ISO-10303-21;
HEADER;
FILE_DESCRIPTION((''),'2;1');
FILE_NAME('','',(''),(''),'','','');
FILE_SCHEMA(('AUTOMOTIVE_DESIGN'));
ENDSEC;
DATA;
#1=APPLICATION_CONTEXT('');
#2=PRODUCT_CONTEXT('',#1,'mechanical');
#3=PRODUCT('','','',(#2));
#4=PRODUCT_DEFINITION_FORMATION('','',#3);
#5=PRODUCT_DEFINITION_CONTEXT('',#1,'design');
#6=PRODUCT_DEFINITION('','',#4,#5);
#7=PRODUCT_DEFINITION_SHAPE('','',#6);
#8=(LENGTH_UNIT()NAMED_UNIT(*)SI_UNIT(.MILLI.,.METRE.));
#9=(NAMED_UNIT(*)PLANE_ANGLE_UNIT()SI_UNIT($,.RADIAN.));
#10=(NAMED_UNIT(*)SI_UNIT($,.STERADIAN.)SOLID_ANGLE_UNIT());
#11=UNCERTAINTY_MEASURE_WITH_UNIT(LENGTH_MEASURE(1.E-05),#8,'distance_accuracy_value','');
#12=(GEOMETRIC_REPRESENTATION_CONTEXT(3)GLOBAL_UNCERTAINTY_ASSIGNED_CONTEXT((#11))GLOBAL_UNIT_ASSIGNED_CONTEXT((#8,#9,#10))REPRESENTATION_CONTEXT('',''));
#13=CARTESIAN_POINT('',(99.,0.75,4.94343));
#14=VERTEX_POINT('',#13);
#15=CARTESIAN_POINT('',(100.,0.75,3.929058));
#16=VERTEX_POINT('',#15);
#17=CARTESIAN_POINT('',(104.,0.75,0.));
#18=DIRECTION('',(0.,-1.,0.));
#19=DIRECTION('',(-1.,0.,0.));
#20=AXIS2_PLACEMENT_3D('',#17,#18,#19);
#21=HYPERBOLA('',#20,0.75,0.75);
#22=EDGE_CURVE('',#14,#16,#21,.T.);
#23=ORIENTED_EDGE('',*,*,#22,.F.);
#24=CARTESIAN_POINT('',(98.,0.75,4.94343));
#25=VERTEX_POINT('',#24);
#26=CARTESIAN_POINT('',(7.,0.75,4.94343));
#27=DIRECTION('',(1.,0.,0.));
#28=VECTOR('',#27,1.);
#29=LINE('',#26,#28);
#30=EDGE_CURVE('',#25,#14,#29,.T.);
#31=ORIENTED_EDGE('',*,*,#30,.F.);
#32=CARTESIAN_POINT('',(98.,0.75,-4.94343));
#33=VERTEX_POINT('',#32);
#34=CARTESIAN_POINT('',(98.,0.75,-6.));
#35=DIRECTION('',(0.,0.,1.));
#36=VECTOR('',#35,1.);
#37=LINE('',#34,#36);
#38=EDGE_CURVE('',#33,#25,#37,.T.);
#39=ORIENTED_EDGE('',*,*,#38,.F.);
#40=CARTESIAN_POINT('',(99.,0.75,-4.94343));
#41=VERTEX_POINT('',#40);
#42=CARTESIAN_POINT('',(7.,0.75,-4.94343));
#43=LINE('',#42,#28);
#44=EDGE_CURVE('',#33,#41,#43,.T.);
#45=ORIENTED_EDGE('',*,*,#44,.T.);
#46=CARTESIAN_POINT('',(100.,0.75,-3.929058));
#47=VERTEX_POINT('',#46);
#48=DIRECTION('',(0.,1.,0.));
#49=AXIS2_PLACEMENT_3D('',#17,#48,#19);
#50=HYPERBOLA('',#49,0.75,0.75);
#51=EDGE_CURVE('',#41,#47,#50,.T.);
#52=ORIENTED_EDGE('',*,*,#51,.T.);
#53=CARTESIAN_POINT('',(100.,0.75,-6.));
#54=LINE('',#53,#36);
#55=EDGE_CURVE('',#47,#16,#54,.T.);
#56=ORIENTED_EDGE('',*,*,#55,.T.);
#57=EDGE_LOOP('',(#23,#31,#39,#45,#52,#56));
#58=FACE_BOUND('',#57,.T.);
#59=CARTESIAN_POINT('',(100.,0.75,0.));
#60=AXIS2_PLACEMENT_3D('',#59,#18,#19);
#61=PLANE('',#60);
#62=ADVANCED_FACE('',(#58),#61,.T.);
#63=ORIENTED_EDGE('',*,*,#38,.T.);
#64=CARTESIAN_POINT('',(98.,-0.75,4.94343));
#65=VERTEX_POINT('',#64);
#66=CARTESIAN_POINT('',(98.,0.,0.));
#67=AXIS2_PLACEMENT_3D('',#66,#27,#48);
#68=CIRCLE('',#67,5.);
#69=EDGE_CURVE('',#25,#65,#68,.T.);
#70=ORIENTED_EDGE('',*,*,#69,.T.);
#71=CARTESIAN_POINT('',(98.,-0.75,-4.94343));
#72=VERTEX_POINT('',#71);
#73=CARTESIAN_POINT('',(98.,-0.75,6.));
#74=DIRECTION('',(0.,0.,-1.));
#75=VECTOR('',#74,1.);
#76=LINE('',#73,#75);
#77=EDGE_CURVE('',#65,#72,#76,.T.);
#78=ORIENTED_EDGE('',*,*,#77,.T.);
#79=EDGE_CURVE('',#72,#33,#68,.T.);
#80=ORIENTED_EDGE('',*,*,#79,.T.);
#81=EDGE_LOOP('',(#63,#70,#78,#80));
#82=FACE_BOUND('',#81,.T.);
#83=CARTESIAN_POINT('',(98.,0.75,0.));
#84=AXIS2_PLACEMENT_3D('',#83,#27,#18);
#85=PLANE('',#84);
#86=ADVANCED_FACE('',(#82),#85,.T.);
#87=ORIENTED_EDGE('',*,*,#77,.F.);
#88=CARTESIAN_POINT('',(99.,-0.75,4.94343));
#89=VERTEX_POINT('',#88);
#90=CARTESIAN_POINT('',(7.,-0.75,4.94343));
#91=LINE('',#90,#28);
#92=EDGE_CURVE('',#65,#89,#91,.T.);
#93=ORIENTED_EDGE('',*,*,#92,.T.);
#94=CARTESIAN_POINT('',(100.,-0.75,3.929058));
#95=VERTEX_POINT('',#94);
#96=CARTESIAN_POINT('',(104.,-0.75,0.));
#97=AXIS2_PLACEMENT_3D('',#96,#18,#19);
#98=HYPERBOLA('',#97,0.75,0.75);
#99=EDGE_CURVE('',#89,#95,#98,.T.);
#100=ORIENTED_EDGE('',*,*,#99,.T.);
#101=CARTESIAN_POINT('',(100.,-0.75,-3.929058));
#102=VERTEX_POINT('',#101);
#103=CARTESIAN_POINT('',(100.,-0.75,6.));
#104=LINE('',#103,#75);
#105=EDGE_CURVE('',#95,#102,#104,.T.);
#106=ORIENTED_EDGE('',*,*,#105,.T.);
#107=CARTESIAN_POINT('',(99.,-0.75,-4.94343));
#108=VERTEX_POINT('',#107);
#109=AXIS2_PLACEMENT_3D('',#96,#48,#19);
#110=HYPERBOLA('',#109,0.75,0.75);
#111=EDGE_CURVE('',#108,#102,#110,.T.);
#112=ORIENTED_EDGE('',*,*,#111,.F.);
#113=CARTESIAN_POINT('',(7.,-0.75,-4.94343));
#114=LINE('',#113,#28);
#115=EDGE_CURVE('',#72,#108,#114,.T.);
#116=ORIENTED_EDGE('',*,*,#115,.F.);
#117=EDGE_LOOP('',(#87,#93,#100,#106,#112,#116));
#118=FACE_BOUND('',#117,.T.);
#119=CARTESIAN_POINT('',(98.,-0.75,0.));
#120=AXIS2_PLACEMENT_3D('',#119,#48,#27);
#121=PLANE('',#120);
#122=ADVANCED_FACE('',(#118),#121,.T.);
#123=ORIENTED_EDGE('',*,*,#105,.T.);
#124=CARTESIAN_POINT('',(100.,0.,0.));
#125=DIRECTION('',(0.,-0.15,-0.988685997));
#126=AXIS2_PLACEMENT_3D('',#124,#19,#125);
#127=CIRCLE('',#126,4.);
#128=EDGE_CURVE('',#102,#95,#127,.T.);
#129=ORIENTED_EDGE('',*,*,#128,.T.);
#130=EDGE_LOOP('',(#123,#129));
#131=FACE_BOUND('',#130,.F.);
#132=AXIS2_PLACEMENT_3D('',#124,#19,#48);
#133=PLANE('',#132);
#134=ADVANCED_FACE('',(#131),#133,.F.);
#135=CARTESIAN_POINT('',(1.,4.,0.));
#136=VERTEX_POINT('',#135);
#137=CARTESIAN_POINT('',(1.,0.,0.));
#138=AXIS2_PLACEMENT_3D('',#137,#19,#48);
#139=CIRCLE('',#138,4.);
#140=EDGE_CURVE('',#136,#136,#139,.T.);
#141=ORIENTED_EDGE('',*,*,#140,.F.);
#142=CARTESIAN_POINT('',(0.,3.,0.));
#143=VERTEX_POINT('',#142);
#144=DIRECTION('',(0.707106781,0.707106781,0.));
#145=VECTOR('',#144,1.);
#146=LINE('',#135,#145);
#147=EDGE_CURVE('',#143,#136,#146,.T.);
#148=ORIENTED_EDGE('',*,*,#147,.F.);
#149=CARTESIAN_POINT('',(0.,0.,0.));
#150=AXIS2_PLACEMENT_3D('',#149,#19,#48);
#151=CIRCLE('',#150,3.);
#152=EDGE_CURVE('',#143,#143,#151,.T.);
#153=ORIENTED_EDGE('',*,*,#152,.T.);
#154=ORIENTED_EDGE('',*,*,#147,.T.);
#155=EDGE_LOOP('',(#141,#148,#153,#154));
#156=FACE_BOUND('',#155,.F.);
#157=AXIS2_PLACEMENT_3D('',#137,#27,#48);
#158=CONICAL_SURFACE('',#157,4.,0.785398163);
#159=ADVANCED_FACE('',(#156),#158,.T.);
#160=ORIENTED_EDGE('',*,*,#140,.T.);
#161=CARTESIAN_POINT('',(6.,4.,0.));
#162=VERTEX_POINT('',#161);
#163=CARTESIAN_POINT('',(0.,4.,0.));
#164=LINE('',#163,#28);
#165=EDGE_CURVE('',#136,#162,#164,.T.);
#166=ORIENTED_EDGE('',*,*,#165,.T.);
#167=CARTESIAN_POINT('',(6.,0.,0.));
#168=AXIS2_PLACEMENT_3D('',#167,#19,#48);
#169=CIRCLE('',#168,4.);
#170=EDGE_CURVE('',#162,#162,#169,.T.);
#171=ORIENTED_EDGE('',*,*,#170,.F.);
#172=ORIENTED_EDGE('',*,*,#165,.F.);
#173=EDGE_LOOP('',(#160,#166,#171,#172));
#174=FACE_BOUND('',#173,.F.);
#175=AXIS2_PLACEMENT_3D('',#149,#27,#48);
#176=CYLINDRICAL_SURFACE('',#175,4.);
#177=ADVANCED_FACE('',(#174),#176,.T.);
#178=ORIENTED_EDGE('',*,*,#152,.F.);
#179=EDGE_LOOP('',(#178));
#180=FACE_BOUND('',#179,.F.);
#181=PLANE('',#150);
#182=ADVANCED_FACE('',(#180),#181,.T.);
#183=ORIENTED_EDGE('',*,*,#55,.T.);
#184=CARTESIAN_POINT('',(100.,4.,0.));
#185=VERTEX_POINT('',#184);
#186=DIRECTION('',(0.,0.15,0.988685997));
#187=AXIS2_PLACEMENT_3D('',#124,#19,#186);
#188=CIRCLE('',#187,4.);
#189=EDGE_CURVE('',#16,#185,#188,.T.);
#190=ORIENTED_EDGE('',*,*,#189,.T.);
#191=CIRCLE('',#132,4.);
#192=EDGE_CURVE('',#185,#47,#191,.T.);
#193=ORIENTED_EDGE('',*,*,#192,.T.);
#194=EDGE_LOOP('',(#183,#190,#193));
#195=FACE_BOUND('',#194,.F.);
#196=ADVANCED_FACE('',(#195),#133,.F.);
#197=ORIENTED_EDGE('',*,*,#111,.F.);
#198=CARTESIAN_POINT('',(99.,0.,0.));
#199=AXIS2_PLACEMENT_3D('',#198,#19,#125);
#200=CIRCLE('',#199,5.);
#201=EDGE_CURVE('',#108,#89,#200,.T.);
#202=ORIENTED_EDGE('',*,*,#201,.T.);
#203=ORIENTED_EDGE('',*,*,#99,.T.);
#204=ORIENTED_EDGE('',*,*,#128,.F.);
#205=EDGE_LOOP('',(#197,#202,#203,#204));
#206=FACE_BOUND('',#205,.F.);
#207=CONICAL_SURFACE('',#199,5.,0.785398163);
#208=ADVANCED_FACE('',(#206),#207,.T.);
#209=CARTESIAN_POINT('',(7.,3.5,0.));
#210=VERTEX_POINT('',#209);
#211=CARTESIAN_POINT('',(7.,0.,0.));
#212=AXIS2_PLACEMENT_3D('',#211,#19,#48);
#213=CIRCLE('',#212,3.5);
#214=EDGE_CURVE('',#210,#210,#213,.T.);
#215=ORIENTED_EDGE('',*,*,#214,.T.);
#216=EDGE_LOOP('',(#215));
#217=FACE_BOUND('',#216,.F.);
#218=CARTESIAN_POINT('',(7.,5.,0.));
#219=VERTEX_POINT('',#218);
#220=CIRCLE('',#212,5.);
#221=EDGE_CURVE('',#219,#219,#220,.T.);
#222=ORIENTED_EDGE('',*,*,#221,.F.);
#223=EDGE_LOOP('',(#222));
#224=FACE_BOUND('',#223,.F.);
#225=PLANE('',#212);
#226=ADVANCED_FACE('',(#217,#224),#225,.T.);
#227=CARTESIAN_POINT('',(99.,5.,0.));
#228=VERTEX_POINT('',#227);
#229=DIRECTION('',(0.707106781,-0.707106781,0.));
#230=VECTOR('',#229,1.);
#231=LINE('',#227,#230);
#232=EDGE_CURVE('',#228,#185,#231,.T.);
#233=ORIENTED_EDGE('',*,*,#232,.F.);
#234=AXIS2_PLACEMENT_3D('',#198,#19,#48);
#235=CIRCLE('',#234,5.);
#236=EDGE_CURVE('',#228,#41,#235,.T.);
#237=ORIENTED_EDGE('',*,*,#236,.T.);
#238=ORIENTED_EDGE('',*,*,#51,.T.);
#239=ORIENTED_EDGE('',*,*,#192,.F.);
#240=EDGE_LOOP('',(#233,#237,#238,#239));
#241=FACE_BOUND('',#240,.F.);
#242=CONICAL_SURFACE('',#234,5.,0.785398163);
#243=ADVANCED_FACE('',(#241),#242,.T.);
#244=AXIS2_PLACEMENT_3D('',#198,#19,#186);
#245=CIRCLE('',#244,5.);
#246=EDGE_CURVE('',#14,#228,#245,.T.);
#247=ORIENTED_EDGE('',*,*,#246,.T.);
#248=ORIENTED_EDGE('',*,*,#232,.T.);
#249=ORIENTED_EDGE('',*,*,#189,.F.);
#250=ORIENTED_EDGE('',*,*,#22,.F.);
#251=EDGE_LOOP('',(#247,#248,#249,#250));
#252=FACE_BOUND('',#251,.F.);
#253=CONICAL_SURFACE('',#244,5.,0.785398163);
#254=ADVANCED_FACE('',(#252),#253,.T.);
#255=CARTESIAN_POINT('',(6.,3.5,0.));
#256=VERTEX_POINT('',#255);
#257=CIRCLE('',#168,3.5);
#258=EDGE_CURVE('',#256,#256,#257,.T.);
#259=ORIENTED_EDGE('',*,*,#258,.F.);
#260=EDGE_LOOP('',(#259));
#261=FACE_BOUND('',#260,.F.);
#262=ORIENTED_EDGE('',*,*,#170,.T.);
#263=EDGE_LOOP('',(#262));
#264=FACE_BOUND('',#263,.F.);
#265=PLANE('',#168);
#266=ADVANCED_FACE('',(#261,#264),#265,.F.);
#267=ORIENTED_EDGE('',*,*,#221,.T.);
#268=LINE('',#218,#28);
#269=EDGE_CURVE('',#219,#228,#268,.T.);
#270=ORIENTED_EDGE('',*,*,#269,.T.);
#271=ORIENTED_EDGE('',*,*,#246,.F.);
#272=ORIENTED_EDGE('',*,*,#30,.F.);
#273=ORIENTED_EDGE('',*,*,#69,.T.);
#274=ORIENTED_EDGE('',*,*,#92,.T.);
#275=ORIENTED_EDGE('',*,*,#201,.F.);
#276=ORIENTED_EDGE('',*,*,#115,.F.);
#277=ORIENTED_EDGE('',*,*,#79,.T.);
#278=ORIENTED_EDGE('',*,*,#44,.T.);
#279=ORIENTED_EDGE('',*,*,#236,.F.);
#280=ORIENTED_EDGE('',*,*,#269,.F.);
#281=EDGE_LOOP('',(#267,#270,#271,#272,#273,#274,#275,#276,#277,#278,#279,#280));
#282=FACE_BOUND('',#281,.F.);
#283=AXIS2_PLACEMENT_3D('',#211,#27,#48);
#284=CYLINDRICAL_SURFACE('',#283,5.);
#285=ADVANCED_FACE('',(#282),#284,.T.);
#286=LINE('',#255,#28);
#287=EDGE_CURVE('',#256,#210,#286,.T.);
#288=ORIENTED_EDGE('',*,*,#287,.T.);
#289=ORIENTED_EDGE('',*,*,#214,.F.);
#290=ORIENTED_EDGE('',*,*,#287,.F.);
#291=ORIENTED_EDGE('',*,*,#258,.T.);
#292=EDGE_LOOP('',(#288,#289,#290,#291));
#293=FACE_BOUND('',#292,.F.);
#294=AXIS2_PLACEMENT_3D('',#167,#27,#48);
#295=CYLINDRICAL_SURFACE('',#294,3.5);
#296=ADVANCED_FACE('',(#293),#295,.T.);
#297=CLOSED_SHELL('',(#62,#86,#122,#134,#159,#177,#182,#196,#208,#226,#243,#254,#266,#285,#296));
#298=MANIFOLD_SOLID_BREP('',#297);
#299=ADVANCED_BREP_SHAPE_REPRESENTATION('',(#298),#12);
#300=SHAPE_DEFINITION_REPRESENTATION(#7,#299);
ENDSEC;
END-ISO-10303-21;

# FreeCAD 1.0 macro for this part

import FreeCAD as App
import Part
import Sketcher
from FreeCAD import Vector
Q = App.Units.Quantity


def edges_at(feature, points):
    """Names of the edges that pass closest to the given points."""
    edges = feature.Shape.Edges
    near = lambda p: min(range(len(edges)), key=lambda i: edges[i].distToShape(Part.Vertex(*p))[0])
    return sorted({f"Edge{near(p) + 1}" for p in points})

doc = App.newDocument("Part")
params = doc.addObject("Spreadsheet::Sheet", "Params")
for row, (alias, value) in enumerate([
    ("sketch1_width", "100 mm"),
    ("sketch1_width2", "1 mm"),
    ("sketch1_height", "4 mm"),
    ("sketch1_height2", "1.5 mm"),
    ("revolution_angle", "360 deg"),
    ("chamfer_size", "1 mm"),
    ("sketch2_width", "2 mm"),
    ("sketch2_height", "1.5 mm"),
    ("chamfer2_size", "1 mm"),
], start=1):
    params.set(f"A{row}", alias)
    params.set(f"B{row}", "=" + value)
    params.setAlias(f"B{row}", alias)

body = doc.addObject("PartDesign::Body", "Body")

# Sketch on XY plane
sketch1 = body.newObject("Sketcher::SketchObject", "Sketch")
sketch1.AttachmentSupport = (doc.getObject("XY_Plane"), [""])
sketch1.MapMode = "FlatFace"
sketch1.addGeometry(Part.LineSegment(Vector(0, 4, 0), Vector(0, 0, 0)), False)
sketch1.addGeometry(Part.LineSegment(Vector(0, 0, 0), Vector(100, 0, 0)), False)
sketch1.addGeometry(Part.LineSegment(Vector(100, 0, 0), Vector(100, 5, 0)), False)
sketch1.addGeometry(Part.LineSegment(Vector(100, 5, 0), Vector(7, 5, 0)), False)
sketch1.addGeometry(Part.LineSegment(Vector(7, 5, 0), Vector(7, 3.5, 0)), False)
sketch1.addGeometry(Part.LineSegment(Vector(7, 3.5, 0), Vector(6, 3.5, 0)), False)
sketch1.addGeometry(Part.LineSegment(Vector(6, 3.5, 0), Vector(6, 4, 0)), False)
sketch1.addGeometry(Part.LineSegment(Vector(6, 4, 0), Vector(0, 4, 0)), False)
sketch1.addConstraint(Sketcher.Constraint("Coincident", 0, 2, 1, 1))
sketch1.addConstraint(Sketcher.Constraint("Coincident", 1, 2, 2, 1))
sketch1.addConstraint(Sketcher.Constraint("Coincident", 2, 2, 3, 1))
sketch1.addConstraint(Sketcher.Constraint("Coincident", 3, 2, 4, 1))
sketch1.addConstraint(Sketcher.Constraint("Coincident", 4, 2, 5, 1))
sketch1.addConstraint(Sketcher.Constraint("Coincident", 5, 2, 6, 1))
sketch1.addConstraint(Sketcher.Constraint("Coincident", 6, 2, 7, 1))
sketch1.addConstraint(Sketcher.Constraint("Coincident", 7, 2, 0, 1))
sketch1.addConstraint(Sketcher.Constraint("Vertical", 0))
sketch1.addConstraint(Sketcher.Constraint("Horizontal", 1))
sketch1.addConstraint(Sketcher.Constraint("Vertical", 2))
sketch1.addConstraint(Sketcher.Constraint("Horizontal", 3))
sketch1.addConstraint(Sketcher.Constraint("Vertical", 4))
sketch1.addConstraint(Sketcher.Constraint("Horizontal", 5))
sketch1.addConstraint(Sketcher.Constraint("Vertical", 6))
sketch1.addConstraint(Sketcher.Constraint("Horizontal", 7))
sketch1.addConstraint(Sketcher.Constraint("Coincident", 0, 2, -1, 1))
sketch1.addConstraint(Sketcher.Constraint("DistanceX", 1, 1, 1, 2, Q("100 mm")))
sketch1.addConstraint(Sketcher.Constraint("DistanceX", 5, 2, 5, 1, Q("1 mm")))
sketch1.addConstraint(Sketcher.Constraint("DistanceX", -1, 1, 3, 2, Q("7 mm")))
sketch1.addConstraint(Sketcher.Constraint("DistanceY", 6, 2, 3, 2, Q("1 mm")))
sketch1.addConstraint(Sketcher.Constraint("DistanceY", 0, 2, 0, 1, Q("4 mm")))
sketch1.addConstraint(Sketcher.Constraint("DistanceY", 4, 2, 4, 1, Q("1.5 mm")))
sketch1.setExpression("Constraints[17]", "Params.sketch1_width")
sketch1.setExpression("Constraints[18]", "Params.sketch1_width2")
sketch1.setExpression("Constraints[21]", "Params.sketch1_height")
sketch1.setExpression("Constraints[22]", "Params.sketch1_height2")
revolution = body.newObject("PartDesign::Revolution", "Revolution")
revolution.Profile = sketch1
revolution.ReferenceAxis = (sketch1, ["H_Axis"])
revolution.setExpression("Angle", "Params.revolution_angle")
doc.recompute()

chamfer = body.newObject("PartDesign::Chamfer", "Chamfer")
chamfer.Base = (revolution, edges_at(revolution, [(0, -4, 0)]))
chamfer.setExpression("Size", "Params.chamfer_size")

# Sketch on XY plane
sketch2 = body.newObject("Sketcher::SketchObject", "Sketch001")
sketch2.AttachmentSupport = (doc.getObject("XY_Plane"), [""])
sketch2.MapMode = "FlatFace"
sketch2.addGeometry(Part.LineSegment(Vector(100, -0.8, 0), Vector(100, 0.8, 0)), False)
sketch2.addGeometry(Part.LineSegment(Vector(100, 0.8, 0), Vector(98, 0.8, 0)), False)
sketch2.addGeometry(Part.LineSegment(Vector(98, 0.8, 0), Vector(98, -0.8, 0)), False)
sketch2.addGeometry(Part.LineSegment(Vector(98, -0.8, 0), Vector(100, -0.8, 0)), False)
sketch2.addConstraint(Sketcher.Constraint("Coincident", 0, 2, 1, 1))
sketch2.addConstraint(Sketcher.Constraint("Coincident", 1, 2, 2, 1))
sketch2.addConstraint(Sketcher.Constraint("Coincident", 2, 2, 3, 1))
sketch2.addConstraint(Sketcher.Constraint("Coincident", 3, 2, 0, 1))
sketch2.addConstraint(Sketcher.Constraint("Vertical", 0))
sketch2.addConstraint(Sketcher.Constraint("Horizontal", 1))
sketch2.addConstraint(Sketcher.Constraint("Vertical", 2))
sketch2.addConstraint(Sketcher.Constraint("Horizontal", 3))
sketch2.addConstraint(Sketcher.Constraint("DistanceX", 1, 2, 1, 1, Q("2 mm")))
sketch2.addConstraint(Sketcher.Constraint("DistanceY", 0, 1, 0, 2, Q("1.5 mm")))
sketch2.addConstraint(Sketcher.Constraint("DistanceX", -1, 1, 0, 2, Q("100 mm")))
sketch2.addConstraint(Sketcher.Constraint("DistanceY", -1, 1, 0, 2, Q("0.75 mm")))
sketch2.setExpression("Constraints[8]", "Params.sketch2_width")
sketch2.setExpression("Constraints[9]", "Params.sketch2_height")
pocket1 = body.newObject("PartDesign::Pocket", "Pocket")
pocket1.Profile = sketch2
pocket1.Type = "ThroughAll"
pocket1.Midplane = True
doc.recompute()

chamfer2 = body.newObject("PartDesign::Chamfer", "Chamfer001")
chamfer2.Base = (pocket1, edges_at(pocket1, [(100, -5, 0), (100, 3.791, -3.26), (100, 3.791, 3.26)]))
chamfer2.setExpression("Size", "Params.chamfer2_size")

doc.recompute()
